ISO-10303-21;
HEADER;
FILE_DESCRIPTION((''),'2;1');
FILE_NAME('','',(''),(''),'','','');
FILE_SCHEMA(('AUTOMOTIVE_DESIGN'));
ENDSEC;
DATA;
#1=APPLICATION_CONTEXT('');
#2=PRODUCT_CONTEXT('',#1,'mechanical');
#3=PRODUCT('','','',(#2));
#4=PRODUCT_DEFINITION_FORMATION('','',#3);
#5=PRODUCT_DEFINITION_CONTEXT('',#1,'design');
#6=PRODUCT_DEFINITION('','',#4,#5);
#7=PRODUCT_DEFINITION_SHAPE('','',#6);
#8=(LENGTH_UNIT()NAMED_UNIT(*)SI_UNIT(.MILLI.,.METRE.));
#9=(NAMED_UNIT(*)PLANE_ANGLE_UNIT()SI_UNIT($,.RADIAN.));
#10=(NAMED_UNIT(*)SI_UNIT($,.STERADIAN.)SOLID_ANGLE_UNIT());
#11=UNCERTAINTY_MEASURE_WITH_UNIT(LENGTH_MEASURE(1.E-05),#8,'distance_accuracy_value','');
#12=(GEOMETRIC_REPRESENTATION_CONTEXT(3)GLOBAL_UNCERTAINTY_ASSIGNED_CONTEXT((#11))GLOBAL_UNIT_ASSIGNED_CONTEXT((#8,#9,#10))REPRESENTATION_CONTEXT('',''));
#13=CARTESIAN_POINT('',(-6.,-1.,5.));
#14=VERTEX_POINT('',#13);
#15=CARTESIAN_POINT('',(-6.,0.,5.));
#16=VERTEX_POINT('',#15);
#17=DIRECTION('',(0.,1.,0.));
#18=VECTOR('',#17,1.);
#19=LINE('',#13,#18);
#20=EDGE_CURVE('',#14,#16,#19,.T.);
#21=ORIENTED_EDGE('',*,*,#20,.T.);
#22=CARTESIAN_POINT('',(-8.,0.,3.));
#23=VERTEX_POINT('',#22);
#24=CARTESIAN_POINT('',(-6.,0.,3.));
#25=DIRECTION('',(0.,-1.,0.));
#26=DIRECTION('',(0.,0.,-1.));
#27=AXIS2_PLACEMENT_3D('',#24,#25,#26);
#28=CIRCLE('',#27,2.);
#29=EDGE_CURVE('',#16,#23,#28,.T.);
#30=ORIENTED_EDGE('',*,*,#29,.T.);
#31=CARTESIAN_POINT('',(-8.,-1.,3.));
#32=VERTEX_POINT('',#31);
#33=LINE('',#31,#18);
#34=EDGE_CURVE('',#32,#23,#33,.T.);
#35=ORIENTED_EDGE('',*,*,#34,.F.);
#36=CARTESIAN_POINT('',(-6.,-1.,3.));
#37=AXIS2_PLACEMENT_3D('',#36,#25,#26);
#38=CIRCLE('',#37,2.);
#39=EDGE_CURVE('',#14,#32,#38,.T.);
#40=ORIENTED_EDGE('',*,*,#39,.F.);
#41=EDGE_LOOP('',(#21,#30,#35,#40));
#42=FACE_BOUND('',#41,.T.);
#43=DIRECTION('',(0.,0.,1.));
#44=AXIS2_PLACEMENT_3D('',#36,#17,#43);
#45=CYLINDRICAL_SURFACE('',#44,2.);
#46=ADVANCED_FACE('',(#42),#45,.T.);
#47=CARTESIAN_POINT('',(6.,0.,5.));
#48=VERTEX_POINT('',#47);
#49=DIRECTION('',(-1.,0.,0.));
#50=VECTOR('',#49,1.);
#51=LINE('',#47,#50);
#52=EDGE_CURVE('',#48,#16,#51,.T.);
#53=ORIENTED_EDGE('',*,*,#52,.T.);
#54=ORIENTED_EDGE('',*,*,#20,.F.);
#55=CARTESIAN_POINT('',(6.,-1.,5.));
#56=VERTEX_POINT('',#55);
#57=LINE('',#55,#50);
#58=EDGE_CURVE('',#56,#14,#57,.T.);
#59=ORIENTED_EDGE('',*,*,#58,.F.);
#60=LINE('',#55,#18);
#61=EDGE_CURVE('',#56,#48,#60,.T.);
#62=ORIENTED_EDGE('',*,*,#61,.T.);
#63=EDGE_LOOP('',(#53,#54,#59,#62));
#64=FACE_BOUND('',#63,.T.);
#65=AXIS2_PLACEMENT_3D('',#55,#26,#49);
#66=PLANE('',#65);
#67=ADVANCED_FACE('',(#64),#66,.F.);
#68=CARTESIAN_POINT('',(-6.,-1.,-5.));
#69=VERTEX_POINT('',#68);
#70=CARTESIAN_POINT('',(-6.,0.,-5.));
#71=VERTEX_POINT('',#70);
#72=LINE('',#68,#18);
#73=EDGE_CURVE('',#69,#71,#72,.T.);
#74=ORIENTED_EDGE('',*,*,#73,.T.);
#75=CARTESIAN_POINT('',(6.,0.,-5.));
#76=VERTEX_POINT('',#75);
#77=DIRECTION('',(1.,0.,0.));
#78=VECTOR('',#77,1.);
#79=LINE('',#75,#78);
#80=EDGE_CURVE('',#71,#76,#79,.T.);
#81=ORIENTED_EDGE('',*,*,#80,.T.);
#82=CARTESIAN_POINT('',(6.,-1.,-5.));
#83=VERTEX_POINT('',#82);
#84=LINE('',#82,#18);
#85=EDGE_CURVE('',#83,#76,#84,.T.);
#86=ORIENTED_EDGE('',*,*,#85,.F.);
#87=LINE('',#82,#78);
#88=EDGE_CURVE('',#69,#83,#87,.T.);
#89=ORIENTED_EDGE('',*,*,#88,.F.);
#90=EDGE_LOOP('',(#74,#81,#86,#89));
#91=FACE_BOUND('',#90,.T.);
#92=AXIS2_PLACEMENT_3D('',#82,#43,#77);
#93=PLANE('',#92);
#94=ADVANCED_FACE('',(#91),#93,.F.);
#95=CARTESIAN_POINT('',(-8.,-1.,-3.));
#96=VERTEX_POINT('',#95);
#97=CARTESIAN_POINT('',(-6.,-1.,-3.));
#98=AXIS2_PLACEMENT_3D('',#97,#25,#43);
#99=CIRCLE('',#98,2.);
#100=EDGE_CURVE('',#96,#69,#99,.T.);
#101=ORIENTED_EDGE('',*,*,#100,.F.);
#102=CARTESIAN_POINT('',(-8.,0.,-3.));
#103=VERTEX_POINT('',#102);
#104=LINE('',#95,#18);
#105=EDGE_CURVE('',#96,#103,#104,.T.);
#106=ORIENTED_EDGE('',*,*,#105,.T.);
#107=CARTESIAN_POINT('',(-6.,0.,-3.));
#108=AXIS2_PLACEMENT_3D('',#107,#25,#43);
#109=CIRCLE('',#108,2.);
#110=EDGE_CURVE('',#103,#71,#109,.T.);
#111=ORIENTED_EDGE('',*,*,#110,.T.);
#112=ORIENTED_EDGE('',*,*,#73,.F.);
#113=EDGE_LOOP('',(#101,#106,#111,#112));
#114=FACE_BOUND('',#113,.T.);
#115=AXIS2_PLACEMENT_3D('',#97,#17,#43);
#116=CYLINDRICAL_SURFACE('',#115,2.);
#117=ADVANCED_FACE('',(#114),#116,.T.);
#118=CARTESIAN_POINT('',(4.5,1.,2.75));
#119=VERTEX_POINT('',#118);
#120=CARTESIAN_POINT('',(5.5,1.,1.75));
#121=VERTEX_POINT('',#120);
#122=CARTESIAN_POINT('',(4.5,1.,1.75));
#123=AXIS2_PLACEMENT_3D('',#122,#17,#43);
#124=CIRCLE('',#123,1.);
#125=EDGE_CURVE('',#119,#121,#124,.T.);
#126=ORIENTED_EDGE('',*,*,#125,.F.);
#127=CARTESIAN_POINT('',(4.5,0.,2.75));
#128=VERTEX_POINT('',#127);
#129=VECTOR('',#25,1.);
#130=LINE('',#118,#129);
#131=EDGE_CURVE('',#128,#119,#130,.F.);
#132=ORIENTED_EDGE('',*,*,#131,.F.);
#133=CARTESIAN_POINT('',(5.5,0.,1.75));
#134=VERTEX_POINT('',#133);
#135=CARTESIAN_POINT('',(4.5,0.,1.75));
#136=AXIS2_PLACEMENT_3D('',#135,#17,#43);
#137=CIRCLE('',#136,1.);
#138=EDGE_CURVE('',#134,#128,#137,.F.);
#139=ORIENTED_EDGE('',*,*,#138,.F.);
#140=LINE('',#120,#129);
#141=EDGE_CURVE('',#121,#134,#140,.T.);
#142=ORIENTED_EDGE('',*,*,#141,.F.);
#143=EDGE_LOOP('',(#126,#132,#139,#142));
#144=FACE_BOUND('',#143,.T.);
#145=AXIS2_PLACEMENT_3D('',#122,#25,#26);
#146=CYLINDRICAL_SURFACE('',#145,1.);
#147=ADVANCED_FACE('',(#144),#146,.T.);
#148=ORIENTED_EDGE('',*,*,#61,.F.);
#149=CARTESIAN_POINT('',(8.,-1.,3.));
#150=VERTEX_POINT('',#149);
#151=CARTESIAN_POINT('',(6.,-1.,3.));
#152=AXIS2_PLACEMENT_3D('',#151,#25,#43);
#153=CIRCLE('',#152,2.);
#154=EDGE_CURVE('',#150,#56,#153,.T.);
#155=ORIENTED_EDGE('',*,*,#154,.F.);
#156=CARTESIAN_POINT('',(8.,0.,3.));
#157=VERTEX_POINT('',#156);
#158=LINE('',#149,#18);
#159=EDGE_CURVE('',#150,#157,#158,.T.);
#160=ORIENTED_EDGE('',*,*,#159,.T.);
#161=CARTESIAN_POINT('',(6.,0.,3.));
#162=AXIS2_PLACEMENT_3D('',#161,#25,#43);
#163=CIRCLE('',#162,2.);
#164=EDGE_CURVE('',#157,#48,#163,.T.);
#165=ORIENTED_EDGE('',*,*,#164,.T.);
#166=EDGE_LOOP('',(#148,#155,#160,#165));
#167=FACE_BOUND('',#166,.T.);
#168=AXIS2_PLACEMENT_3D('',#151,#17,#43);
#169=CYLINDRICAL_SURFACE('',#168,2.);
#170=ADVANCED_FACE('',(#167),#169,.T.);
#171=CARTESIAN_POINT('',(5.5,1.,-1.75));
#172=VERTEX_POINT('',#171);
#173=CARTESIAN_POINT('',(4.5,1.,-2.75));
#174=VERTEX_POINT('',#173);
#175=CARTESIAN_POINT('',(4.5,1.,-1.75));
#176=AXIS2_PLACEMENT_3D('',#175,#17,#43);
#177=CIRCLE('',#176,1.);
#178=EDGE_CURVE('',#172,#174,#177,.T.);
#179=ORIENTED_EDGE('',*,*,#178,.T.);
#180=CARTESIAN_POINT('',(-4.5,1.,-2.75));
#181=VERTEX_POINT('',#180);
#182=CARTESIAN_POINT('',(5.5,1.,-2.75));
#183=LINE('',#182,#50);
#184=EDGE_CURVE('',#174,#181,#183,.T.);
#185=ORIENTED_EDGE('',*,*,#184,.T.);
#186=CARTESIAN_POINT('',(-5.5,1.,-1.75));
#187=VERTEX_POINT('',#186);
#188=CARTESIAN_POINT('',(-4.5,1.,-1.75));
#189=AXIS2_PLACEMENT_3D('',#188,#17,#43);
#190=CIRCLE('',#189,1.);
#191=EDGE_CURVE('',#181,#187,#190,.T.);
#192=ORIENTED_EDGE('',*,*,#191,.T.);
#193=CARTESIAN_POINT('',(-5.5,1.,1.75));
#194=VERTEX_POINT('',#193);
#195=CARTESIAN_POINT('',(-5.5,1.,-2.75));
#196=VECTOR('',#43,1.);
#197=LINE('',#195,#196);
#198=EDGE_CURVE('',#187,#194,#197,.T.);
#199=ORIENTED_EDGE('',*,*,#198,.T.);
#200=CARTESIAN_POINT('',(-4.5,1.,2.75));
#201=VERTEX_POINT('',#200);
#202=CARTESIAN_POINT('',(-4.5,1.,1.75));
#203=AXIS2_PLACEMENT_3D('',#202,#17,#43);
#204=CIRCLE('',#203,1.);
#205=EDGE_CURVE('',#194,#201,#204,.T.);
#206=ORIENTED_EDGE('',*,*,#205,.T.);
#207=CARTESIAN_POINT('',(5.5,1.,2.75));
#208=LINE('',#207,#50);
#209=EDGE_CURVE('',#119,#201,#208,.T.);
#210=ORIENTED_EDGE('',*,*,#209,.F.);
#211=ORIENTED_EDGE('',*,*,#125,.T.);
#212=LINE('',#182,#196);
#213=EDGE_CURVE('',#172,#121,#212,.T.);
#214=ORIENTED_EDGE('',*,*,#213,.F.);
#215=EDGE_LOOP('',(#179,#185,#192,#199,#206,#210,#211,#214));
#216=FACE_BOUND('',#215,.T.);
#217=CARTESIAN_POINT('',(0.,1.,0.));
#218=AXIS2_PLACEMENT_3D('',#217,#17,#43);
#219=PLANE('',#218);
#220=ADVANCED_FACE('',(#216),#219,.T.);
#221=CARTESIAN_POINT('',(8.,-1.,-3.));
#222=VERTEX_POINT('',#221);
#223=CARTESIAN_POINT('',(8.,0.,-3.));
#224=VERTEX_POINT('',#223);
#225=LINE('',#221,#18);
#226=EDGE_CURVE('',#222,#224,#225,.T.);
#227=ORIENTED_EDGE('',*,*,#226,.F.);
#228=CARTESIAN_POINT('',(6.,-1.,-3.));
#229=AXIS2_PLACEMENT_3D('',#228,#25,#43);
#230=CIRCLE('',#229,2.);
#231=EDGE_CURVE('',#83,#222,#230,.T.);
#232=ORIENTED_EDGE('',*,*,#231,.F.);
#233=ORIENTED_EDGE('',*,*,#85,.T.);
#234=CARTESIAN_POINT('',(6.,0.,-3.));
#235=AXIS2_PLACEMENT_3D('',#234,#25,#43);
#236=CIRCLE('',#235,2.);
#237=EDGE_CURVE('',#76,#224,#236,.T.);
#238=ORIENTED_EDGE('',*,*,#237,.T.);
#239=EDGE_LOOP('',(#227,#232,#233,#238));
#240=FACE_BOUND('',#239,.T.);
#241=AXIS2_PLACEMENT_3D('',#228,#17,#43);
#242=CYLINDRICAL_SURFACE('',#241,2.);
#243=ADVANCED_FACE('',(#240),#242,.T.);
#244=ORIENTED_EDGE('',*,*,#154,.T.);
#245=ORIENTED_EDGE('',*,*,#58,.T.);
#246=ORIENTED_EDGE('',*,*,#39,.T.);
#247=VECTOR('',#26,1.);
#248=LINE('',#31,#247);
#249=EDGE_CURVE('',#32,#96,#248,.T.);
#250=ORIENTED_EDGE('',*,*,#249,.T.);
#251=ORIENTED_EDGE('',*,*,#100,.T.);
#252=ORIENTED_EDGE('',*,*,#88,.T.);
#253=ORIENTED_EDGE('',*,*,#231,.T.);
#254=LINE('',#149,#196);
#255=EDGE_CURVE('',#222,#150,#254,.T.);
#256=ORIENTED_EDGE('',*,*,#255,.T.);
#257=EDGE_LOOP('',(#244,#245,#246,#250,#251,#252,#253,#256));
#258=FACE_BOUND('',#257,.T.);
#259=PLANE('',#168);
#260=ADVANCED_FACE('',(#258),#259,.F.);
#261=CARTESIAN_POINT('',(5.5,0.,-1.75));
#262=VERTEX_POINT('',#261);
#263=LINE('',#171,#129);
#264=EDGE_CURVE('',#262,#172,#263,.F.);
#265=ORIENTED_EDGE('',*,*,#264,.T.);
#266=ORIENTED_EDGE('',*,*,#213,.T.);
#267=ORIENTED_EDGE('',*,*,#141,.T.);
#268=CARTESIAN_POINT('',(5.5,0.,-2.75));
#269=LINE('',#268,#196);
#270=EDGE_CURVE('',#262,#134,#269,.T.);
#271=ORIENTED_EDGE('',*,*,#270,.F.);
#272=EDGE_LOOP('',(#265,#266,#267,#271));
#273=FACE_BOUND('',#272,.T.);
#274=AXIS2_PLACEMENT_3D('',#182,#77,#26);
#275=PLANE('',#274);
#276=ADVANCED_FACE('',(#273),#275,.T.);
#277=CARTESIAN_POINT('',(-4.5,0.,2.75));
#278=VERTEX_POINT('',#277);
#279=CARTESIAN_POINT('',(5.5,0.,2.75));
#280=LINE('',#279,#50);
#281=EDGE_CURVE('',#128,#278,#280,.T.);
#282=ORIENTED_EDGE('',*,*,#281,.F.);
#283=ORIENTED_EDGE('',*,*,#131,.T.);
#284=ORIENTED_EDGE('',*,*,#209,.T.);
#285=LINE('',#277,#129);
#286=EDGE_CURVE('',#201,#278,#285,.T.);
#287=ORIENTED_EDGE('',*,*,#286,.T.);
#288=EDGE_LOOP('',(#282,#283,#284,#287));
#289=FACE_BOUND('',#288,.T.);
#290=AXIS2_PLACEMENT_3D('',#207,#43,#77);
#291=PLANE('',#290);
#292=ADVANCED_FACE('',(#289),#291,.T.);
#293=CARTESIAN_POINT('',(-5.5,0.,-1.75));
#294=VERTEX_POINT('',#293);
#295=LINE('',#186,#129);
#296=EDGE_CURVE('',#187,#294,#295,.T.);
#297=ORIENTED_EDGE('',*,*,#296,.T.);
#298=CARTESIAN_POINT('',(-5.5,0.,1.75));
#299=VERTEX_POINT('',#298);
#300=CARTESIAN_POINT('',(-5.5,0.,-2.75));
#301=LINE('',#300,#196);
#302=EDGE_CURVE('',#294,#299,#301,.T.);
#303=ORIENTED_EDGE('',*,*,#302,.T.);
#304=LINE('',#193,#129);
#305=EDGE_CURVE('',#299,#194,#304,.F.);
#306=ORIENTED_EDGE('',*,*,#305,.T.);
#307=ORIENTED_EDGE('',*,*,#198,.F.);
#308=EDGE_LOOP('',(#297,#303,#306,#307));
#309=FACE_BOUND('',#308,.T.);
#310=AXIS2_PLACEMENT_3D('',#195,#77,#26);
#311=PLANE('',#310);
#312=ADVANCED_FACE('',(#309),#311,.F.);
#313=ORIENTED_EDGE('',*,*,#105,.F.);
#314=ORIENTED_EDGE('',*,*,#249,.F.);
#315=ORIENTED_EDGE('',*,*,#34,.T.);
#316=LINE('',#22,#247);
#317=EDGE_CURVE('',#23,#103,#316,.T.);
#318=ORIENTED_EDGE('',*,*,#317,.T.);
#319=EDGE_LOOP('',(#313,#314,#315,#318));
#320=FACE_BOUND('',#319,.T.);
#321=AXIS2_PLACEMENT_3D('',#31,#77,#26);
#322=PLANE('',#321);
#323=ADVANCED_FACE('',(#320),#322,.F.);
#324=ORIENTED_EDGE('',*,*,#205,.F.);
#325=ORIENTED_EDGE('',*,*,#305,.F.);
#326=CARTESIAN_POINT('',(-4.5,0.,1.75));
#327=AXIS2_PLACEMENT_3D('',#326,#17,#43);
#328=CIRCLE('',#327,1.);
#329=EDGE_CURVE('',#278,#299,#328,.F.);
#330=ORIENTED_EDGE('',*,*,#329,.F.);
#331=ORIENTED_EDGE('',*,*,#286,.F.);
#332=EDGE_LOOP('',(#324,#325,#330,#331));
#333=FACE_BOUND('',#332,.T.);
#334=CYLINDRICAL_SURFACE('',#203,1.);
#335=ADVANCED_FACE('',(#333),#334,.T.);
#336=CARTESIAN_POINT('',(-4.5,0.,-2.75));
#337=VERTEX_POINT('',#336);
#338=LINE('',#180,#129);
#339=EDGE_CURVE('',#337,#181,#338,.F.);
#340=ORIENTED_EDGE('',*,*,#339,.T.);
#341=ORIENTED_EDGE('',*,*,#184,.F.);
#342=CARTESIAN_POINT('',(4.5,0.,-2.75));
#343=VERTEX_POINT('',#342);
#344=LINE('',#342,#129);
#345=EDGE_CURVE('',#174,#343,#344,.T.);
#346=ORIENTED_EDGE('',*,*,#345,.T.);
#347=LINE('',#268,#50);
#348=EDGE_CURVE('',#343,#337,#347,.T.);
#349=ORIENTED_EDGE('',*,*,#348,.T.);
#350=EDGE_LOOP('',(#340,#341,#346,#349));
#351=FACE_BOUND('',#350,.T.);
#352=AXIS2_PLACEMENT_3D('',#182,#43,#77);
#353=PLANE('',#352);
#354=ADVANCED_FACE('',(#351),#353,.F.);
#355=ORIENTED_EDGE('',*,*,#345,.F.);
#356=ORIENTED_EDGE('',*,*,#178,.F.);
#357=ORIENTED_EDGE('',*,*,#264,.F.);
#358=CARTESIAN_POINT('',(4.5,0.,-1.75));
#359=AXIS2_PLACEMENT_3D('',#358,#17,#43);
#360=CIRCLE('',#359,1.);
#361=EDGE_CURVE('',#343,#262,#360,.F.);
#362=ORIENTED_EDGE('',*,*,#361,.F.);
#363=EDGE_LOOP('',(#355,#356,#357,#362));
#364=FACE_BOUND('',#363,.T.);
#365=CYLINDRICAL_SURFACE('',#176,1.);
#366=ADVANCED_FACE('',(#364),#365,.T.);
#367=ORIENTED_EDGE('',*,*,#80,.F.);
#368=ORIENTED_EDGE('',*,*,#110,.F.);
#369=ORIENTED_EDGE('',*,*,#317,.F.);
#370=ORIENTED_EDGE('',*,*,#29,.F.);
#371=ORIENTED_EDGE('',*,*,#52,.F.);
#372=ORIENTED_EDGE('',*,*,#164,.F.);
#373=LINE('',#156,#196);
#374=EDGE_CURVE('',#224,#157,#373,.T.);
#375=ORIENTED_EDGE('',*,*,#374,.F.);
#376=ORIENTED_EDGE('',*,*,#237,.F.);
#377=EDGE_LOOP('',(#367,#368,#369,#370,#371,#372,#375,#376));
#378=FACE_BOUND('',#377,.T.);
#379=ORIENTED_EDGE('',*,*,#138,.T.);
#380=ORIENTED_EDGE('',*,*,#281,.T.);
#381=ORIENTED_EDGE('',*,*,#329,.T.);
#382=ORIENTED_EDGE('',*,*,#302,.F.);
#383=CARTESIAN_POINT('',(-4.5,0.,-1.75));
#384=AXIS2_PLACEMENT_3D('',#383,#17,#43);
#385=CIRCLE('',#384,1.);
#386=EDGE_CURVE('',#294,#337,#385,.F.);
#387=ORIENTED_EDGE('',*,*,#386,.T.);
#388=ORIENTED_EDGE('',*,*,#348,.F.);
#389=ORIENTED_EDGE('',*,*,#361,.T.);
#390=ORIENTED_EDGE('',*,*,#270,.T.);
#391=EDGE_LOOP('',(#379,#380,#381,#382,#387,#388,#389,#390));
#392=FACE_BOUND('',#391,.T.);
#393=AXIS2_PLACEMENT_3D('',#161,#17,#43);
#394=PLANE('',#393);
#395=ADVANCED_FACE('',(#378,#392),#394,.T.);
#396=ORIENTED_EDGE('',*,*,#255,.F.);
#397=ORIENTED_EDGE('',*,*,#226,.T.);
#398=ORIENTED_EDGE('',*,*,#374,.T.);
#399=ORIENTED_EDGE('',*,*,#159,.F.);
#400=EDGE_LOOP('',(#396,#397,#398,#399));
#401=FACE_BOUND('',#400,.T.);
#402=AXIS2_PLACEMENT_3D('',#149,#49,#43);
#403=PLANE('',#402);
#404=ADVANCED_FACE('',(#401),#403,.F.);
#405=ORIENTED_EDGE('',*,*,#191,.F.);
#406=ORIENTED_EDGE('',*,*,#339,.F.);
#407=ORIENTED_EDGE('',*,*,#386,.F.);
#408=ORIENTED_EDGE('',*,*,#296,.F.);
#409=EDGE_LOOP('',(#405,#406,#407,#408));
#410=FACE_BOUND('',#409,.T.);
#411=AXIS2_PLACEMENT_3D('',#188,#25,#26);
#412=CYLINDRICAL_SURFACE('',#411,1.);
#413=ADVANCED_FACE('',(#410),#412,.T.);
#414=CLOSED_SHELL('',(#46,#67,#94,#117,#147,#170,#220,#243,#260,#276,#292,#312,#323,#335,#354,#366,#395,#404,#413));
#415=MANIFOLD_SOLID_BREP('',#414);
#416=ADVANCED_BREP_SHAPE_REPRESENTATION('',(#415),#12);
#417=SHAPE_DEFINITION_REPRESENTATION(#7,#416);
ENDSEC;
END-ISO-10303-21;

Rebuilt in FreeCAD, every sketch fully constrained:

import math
import FreeCAD as App
import Part
import Sketcher
from FreeCAD import Vector
Q = App.Units.Quantity


def edges_at(feature, points):
    """Names of the edges that pass closest to the given points."""
    edges = feature.Shape.Edges
    near = lambda p: min(range(len(edges)), key=lambda i: edges[i].distToShape(Part.Vertex(*p))[0])
    return sorted({f"Edge{near(p) + 1}" for p in points})


def add_polygon(sketch, points):
    """Adds a closed chain of lines whose ends are joined by coincident constraints."""
    first, n = sketch.GeometryCount, len(points)
    for a, b in zip(points, points[1:] + points[:1]):
        sketch.addGeometry(Part.LineSegment(App.Vector(*a, 0), App.Vector(*b, 0)), False)
    for i in range(n):
        sketch.addConstraint(Sketcher.Constraint("Coincident", first + i, 2, first + (i + 1) % n, 1))

doc = App.newDocument("Part")
params = doc.addObject("Spreadsheet::Sheet", "Params")
for row, (alias, value) in enumerate([
    ("sketch1_width", "11 mm"),
    ("sketch1_height", "5.5 mm"),
    ("pad1_length", "1 mm"),
    ("sketch2_radius", "2 mm"),
    ("sketch2_width", "12 mm"),
    ("sketch2_height", "6 mm"),
    ("pad2_length", "1 mm"),
    ("fillet_radius", "1 mm"),
], start=1):
    params.set(f"A{row}", alias)
    params.set(f"B{row}", "=" + value)
    params.setAlias(f"B{row}", alias)

body = doc.addObject("PartDesign::Body", "Body")

# Sketch on XZ plane
sketch1 = body.newObject("Sketcher::SketchObject", "Sketch")
sketch1.AttachmentSupport = (doc.getObject("XZ_Plane"), [""])
sketch1.MapMode = "FlatFace"
add_polygon(sketch1, [(-6, -3), (-6, 3), (6, 3), (6, -3)])  # lines 0-3
sketch1.addConstraint([
    Sketcher.Constraint("Vertical", 0),
    Sketcher.Constraint("Horizontal", 1),
    Sketcher.Constraint("Vertical", 2),
    Sketcher.Constraint("Horizontal", 3),
    Sketcher.Constraint("Symmetric", 0, 2, 2, 2, -1, 1),
    Sketcher.Constraint("DistanceX", 1, 1, 1, 2, Q("11 mm")),
    Sketcher.Constraint("DistanceY", 0, 1, 0, 2, Q("5.5 mm")),
])
sketch1.setExpression("Constraints[9]", "Params.sketch1_width")
sketch1.setExpression("Constraints[10]", "Params.sketch1_height")
pad1 = body.newObject("PartDesign::Pad", "Pad")
pad1.Profile = sketch1
pad1.setExpression("Length", "Params.pad1_length")
pad1.Reversed = True

# Sketch on XZ plane
sketch2 = body.newObject("Sketcher::SketchObject", "Sketch001")
sketch2.AttachmentSupport = (doc.getObject("XZ_Plane"), [""])
sketch2.MapMode = "FlatFace"
sketch2.addGeometry([
    Part.LineSegment(Vector(6, 5, 0), Vector(-6, 5, 0)),  # 0
    Part.ArcOfCircle(Part.Circle(Vector(-6, 3, 0), Vector(0, 0, 1), 2), math.radians(90), math.radians(180)),  # 1
    Part.LineSegment(Vector(-8, 3, 0), Vector(-8, -3, 0)),  # 2
    Part.ArcOfCircle(Part.Circle(Vector(-6, -3, 0), Vector(0, 0, 1), 2), math.radians(-180), math.radians(-90)),  # 3
    Part.LineSegment(Vector(-6, -5, 0), Vector(6, -5, 0)),  # 4
    Part.ArcOfCircle(Part.Circle(Vector(6, -3, 0), Vector(0, 0, 1), 2), math.radians(-90), math.radians(0)),  # 5
    Part.LineSegment(Vector(8, -3, 0), Vector(8, 3, 0)),  # 6
    Part.ArcOfCircle(Part.Circle(Vector(6, 3, 0), Vector(0, 0, 1), 2), math.radians(0), math.radians(90)),  # 7
], False)
sketch2.addConstraint([
    Sketcher.Constraint("Tangent", 0, 2, 1, 1),
    Sketcher.Constraint("Tangent", 1, 2, 2, 1),
    Sketcher.Constraint("Tangent", 2, 2, 3, 1),
    Sketcher.Constraint("Tangent", 3, 2, 4, 1),
    Sketcher.Constraint("Tangent", 4, 2, 5, 1),
    Sketcher.Constraint("Tangent", 5, 2, 6, 1),
    Sketcher.Constraint("Tangent", 6, 2, 7, 1),
    Sketcher.Constraint("Tangent", 7, 2, 0, 1),
    Sketcher.Constraint("Horizontal", 0),
    Sketcher.Constraint("Vertical", 2),
    Sketcher.Constraint("Horizontal", 4),
    Sketcher.Constraint("Vertical", 6),
    Sketcher.Constraint("Equal", 1, 3),
    Sketcher.Constraint("Equal", 3, 5),
    Sketcher.Constraint("Equal", 5, 7),
    Sketcher.Constraint("Symmetric", 1, 3, 5, 3, -1, 1),
    Sketcher.Constraint("Radius", 1, Q("2 mm")),
    Sketcher.Constraint("DistanceX", 0, 2, 0, 1, Q("12 mm")),
    Sketcher.Constraint("DistanceY", 2, 2, 2, 1, Q("6 mm")),
])
sketch2.setExpression("Constraints[16]", "Params.sketch2_radius")
sketch2.setExpression("Constraints[17]", "Params.sketch2_width")
sketch2.setExpression("Constraints[18]", "Params.sketch2_height")
pad2 = body.newObject("PartDesign::Pad", "Pad001")
pad2.Profile = sketch2
pad2.setExpression("Length", "Params.pad2_length")
doc.recompute()

fillet = body.newObject("PartDesign::Fillet", "Fillet")
fillet.Base = (pad2, edges_at(pad2, [
    (5.5, 0.5, 2.75),
    (5.5, 0.5, -2.75),
    (-5.5, 0.5, -2.75),
    (-5.5, 0.5, 2.75),
]))
fillet.setExpression("Radius", "Params.fillet_radius")

doc.recompute()
